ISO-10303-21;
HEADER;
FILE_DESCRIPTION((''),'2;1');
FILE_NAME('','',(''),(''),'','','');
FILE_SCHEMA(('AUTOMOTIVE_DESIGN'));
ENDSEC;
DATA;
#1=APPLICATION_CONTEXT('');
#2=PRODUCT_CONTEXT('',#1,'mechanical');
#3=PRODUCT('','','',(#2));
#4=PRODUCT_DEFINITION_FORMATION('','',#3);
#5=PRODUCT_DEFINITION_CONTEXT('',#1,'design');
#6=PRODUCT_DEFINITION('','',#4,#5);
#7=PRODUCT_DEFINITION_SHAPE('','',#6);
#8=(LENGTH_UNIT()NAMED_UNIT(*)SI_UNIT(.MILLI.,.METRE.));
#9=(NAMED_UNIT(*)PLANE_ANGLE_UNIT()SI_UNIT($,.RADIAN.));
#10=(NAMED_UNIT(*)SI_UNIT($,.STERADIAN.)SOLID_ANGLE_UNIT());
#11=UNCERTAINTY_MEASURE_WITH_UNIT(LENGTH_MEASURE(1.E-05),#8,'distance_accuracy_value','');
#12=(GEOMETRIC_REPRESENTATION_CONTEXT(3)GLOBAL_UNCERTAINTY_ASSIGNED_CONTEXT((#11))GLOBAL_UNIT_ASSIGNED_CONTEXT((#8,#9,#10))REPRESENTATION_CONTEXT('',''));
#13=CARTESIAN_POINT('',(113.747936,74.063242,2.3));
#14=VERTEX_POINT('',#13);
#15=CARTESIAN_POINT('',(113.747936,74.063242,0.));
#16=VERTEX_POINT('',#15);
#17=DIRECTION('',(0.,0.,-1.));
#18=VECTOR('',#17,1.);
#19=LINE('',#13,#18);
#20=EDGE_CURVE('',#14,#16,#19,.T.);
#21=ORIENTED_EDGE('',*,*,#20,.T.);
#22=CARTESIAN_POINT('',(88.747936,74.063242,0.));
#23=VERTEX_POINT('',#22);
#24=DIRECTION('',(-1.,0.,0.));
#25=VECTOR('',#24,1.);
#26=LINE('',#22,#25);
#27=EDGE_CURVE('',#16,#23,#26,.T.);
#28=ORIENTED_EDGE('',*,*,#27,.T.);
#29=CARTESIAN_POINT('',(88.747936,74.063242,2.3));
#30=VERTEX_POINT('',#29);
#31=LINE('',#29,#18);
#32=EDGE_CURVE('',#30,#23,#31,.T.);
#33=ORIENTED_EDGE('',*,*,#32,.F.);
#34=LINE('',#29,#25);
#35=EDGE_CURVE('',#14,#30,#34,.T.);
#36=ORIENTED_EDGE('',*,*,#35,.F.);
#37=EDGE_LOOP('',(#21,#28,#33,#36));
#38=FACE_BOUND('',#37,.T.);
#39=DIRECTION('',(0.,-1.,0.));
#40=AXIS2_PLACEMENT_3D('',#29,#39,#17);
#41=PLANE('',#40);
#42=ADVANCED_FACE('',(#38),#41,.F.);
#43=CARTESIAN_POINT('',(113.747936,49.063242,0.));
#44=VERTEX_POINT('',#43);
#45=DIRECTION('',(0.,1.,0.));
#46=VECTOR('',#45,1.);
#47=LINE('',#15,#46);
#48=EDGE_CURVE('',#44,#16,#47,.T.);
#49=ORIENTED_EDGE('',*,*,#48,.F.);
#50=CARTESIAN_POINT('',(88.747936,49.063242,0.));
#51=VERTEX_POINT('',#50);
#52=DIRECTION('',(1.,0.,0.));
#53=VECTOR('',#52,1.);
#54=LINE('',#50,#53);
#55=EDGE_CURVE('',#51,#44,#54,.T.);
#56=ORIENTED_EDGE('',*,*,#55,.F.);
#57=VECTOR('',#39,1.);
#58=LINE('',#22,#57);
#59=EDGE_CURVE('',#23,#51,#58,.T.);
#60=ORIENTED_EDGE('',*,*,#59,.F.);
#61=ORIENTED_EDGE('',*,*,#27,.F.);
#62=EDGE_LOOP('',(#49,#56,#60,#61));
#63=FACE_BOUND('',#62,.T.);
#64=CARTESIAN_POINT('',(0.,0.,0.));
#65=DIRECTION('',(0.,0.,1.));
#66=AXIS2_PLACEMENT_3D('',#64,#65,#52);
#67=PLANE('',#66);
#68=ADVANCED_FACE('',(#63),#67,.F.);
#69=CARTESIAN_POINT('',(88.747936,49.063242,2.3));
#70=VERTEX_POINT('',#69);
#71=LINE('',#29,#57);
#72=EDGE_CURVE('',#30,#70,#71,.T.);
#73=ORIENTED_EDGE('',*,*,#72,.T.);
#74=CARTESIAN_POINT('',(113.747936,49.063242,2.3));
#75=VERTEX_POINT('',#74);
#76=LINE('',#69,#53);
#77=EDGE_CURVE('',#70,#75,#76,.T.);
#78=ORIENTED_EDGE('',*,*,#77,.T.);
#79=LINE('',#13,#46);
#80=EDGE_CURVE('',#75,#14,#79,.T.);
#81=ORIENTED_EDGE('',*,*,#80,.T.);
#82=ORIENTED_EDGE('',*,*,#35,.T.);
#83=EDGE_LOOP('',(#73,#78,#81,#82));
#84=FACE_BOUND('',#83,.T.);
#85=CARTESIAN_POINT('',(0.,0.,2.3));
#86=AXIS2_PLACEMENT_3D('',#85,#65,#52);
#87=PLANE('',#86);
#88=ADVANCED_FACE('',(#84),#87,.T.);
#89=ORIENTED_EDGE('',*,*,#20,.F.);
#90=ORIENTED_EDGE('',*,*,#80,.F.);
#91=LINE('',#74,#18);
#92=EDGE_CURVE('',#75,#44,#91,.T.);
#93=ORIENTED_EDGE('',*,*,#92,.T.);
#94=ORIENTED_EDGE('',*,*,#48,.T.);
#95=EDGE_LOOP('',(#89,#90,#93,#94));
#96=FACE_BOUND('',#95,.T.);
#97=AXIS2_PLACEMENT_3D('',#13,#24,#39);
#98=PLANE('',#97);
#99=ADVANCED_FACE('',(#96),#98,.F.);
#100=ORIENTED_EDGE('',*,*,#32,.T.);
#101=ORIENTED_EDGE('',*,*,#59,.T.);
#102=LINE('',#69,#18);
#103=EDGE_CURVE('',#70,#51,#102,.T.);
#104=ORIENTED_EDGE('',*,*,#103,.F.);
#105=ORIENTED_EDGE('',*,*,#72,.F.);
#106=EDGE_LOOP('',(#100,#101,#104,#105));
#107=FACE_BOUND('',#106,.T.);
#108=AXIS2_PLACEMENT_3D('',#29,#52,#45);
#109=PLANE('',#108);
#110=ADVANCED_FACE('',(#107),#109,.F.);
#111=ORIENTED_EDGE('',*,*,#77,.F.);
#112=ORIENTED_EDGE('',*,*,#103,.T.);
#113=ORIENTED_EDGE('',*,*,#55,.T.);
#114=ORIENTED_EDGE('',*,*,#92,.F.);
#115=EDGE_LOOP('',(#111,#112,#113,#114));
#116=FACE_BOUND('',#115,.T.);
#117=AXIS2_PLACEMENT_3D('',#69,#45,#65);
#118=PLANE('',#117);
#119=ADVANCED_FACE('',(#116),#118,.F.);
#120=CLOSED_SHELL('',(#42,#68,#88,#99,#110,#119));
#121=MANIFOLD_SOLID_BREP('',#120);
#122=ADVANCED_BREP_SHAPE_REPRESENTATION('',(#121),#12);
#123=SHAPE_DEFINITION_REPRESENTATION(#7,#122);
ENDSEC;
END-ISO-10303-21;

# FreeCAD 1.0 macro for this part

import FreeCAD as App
import Part
import Sketcher

V = App.Vector
Q = App.Units.Quantity

doc = App.newDocument("Part")
params = doc.addObject("Spreadsheet::Sheet", "Params")
for row, (alias, value) in enumerate([
    ("sketch1_width", "25 mm"),
    ("pad1_length", "2.3 mm"),
], start=1):
    params.set(f"A{row}", alias)
    params.set(f"B{row}", "=" + value)
    params.setAlias(f"B{row}", alias)

body = doc.addObject("PartDesign::Body", "Body")

sketch1 = body.newObject("Sketcher::SketchObject", "Sketch")
sketch1.AttachmentSupport = (doc.getObject("XY_Plane"), [""])
sketch1.MapMode = "FlatFace"
sketch1.addGeometry([
    Part.LineSegment(V(88.747936, 74.063242, 0), V(88.747936, 49.063242, 0)),
    Part.LineSegment(V(88.747936, 49.063242, 0), V(113.747936, 49.063242, 0)),
    Part.LineSegment(V(113.747936, 49.063242, 0), V(113.747936, 74.063242, 0)),
    Part.LineSegment(V(113.747936, 74.063242, 0), V(88.747936, 74.063242, 0)),
], False)
sketch1.addConstraint([
    Sketcher.Constraint("Coincident", 0, 2, 1, 1),
    Sketcher.Constraint("Coincident", 1, 2, 2, 1),
    Sketcher.Constraint("Coincident", 2, 2, 3, 1),
    Sketcher.Constraint("Coincident", 3, 2, 0, 1),
    Sketcher.Constraint("Vertical", 0),
    Sketcher.Constraint("Horizontal", 1),
    Sketcher.Constraint("Vertical", 2),
    Sketcher.Constraint("Horizontal", 3),
    Sketcher.Constraint("Equal", 3, 0),
    Sketcher.Constraint("DistanceX", 1, 1, 1, 2, Q("25 mm")),
    Sketcher.Constraint("DistanceY", -1, 1, 0, 2, Q("49.063242 mm")),
    Sketcher.Constraint("DistanceX", -1, 1, 0, 2, Q("88.747936 mm")),
])
sketch1.setExpression("Constraints[9]", "Params.sketch1_width")
pad1 = body.newObject("PartDesign::Pad", "Pad")
pad1.Profile = sketch1
pad1.setExpression("Length", "Params.pad1_length")

doc.recompute()
